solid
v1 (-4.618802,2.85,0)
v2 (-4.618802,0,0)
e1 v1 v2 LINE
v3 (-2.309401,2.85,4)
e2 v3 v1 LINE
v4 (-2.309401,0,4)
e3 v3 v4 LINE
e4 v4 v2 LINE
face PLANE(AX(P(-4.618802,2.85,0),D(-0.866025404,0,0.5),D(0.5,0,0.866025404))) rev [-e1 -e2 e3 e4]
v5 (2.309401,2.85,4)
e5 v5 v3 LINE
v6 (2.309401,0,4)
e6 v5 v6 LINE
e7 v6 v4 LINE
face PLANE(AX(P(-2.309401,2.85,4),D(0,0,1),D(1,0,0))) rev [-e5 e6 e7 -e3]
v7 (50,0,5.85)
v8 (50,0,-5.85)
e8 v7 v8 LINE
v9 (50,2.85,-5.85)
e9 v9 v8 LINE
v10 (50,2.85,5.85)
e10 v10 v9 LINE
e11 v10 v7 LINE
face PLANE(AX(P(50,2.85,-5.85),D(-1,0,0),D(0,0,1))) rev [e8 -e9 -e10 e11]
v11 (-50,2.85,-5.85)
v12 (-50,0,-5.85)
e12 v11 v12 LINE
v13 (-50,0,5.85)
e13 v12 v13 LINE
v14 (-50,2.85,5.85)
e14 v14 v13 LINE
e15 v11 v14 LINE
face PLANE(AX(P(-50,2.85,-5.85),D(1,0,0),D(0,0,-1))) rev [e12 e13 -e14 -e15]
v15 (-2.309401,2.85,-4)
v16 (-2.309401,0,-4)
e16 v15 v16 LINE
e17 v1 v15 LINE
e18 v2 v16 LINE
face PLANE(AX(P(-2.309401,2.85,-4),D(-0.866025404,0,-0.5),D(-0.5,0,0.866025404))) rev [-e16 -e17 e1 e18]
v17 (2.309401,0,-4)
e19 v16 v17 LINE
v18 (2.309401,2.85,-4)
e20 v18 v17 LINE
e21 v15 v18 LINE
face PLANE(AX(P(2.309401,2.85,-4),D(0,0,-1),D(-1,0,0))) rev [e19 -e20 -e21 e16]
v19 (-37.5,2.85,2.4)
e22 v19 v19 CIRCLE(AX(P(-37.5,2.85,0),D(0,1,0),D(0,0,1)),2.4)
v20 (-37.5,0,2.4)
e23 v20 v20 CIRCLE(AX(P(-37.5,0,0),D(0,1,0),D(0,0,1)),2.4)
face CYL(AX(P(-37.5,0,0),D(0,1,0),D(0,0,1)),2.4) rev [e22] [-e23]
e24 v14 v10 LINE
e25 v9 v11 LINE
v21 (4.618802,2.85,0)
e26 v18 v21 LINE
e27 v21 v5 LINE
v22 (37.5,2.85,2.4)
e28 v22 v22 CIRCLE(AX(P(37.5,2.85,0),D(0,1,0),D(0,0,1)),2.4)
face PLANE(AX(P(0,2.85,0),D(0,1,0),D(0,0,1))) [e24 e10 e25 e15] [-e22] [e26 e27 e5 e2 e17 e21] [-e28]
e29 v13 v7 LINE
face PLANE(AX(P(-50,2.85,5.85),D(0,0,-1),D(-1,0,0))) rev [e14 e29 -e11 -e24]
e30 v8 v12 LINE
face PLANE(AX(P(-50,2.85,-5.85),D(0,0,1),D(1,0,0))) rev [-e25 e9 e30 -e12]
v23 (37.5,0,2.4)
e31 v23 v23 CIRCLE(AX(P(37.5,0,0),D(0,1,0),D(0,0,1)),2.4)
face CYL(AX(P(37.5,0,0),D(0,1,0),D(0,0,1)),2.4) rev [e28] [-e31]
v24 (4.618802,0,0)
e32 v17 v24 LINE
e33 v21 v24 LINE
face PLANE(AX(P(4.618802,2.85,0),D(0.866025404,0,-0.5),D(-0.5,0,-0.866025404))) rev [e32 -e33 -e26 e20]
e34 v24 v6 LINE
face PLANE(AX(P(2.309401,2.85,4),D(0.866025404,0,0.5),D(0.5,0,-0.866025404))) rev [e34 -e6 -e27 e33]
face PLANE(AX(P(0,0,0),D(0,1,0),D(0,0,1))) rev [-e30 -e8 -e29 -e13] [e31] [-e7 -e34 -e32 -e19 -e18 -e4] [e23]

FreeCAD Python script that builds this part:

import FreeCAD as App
import Part
import Sketcher

V = App.Vector
Q = App.Units.Quantity


def add_polygon(sketch, points):
    """Adds a closed chain of lines whose ends are joined by coincident constraints."""
    first, n = sketch.GeometryCount, len(points)
    for a, b in zip(points, points[1:] + points[:1]):
        sketch.addGeometry(Part.LineSegment(App.Vector(*a, 0), App.Vector(*b, 0)), False)
    for i in range(n):
        sketch.addConstraint(Sketcher.Constraint("Coincident", first + i, 2, first + (i + 1) % n, 1))

doc = App.newDocument("Part")
body = doc.addObject("PartDesign::Body", "Body")

sketch1 = body.newObject("Sketcher::SketchObject", "Sketch")
sketch1.AttachmentSupport = (doc.getObject("XZ_Plane"), [""])
sketch1.MapMode = "FlatFace"
add_polygon(sketch1, [(-50, -6), (-50, 6), (50, 6), (50, -6)])
sketch1.addConstraint([
    Sketcher.Constraint("Vertical", 0),
    Sketcher.Constraint("Horizontal", 1),
    Sketcher.Constraint("Vertical", 2),
    Sketcher.Constraint("Horizontal", 3),
    Sketcher.Constraint("Symmetric", 0, 2, 2, 2, -1, 1),
    Sketcher.Constraint("DistanceX", 1, 1, 1, 2, 100.0),
    Sketcher.Constraint("DistanceY", 0, 1, 0, 2, 11.7),
])
pad1 = body.newObject("PartDesign::Pad", "Pad")
pad1.Profile = sketch1
pad1.Length = 2.85
pad1.Reversed = True

sketch2 = body.newObject("Sketcher::SketchObject", "Sketch001")
sketch2.AttachmentSupport = (doc.getObject("XZ_Plane"), [""])
sketch2.MapMode = "FlatFace"
add_polygon(sketch2, [(2.3, 4), (-2.3, 4), (-4.6, 0), (-2.3, -4), (2.3, -4), (4.6, 0)])
sketch2.addConstraint([
    Sketcher.Constraint("Horizontal", 0),
    Sketcher.Constraint("Horizontal", 3),
    Sketcher.Constraint("Symmetric", 0, 2, 3, 2, -1, 1),
    Sketcher.Constraint("Symmetric", 1, 2, 4, 2, -1, 1),
    Sketcher.Constraint("PointOnObject", 1, 2, -1),
    Sketcher.Constraint("Parallel", 2, 5),
    Sketcher.Constraint("Vertical", 0, 2, 2, 2),
    Sketcher.Constraint("Angle", 1, Q("-120 deg")),
    Sketcher.Constraint("DistanceY", -1, 1, 0, 2, 4.0),
    Sketcher.Constraint("DistanceX", 0, 2, -1, 1, 2.309401),
])
pocket1 = body.newObject("PartDesign::Pocket", "Pocket")
pocket1.Profile = sketch2
pocket1.Type = "ThroughAll"

sketch3 = body.newObject("Sketcher::SketchObject", "Sketch002")
sketch3.AttachmentSupport = (doc.getObject("XZ_Plane"), [""])
sketch3.MapMode = "FlatFace"
sketch3.AttachmentOffset = App.Placement(V(0, 0, -2.85), App.Rotation())
sketch3.addGeometry([
    Part.Circle(V(-37.5, 0, 0), V(0, 0, 1), 2.4),
    Part.Circle(V(37.5, 0, 0), V(0, 0, 1), 2.4),
], False)
sketch3.addConstraint([
    Sketcher.Constraint("Equal", 0, 1),
    Sketcher.Constraint("Symmetric", 0, 3, 1, 3, -1, 1),
    Sketcher.Constraint("PointOnObject", 0, 3, -1),
    Sketcher.Constraint("Diameter", 0, 4.8),
    Sketcher.Constraint("DistanceX", 0, 3, 1, 3, 75.0),
])
pocket2 = body.newObject("PartDesign::Pocket", "Pocket001")
pocket2.Profile = sketch3
pocket2.Type = "ThroughAll"
pocket2.Reversed = True

doc.recompute()
